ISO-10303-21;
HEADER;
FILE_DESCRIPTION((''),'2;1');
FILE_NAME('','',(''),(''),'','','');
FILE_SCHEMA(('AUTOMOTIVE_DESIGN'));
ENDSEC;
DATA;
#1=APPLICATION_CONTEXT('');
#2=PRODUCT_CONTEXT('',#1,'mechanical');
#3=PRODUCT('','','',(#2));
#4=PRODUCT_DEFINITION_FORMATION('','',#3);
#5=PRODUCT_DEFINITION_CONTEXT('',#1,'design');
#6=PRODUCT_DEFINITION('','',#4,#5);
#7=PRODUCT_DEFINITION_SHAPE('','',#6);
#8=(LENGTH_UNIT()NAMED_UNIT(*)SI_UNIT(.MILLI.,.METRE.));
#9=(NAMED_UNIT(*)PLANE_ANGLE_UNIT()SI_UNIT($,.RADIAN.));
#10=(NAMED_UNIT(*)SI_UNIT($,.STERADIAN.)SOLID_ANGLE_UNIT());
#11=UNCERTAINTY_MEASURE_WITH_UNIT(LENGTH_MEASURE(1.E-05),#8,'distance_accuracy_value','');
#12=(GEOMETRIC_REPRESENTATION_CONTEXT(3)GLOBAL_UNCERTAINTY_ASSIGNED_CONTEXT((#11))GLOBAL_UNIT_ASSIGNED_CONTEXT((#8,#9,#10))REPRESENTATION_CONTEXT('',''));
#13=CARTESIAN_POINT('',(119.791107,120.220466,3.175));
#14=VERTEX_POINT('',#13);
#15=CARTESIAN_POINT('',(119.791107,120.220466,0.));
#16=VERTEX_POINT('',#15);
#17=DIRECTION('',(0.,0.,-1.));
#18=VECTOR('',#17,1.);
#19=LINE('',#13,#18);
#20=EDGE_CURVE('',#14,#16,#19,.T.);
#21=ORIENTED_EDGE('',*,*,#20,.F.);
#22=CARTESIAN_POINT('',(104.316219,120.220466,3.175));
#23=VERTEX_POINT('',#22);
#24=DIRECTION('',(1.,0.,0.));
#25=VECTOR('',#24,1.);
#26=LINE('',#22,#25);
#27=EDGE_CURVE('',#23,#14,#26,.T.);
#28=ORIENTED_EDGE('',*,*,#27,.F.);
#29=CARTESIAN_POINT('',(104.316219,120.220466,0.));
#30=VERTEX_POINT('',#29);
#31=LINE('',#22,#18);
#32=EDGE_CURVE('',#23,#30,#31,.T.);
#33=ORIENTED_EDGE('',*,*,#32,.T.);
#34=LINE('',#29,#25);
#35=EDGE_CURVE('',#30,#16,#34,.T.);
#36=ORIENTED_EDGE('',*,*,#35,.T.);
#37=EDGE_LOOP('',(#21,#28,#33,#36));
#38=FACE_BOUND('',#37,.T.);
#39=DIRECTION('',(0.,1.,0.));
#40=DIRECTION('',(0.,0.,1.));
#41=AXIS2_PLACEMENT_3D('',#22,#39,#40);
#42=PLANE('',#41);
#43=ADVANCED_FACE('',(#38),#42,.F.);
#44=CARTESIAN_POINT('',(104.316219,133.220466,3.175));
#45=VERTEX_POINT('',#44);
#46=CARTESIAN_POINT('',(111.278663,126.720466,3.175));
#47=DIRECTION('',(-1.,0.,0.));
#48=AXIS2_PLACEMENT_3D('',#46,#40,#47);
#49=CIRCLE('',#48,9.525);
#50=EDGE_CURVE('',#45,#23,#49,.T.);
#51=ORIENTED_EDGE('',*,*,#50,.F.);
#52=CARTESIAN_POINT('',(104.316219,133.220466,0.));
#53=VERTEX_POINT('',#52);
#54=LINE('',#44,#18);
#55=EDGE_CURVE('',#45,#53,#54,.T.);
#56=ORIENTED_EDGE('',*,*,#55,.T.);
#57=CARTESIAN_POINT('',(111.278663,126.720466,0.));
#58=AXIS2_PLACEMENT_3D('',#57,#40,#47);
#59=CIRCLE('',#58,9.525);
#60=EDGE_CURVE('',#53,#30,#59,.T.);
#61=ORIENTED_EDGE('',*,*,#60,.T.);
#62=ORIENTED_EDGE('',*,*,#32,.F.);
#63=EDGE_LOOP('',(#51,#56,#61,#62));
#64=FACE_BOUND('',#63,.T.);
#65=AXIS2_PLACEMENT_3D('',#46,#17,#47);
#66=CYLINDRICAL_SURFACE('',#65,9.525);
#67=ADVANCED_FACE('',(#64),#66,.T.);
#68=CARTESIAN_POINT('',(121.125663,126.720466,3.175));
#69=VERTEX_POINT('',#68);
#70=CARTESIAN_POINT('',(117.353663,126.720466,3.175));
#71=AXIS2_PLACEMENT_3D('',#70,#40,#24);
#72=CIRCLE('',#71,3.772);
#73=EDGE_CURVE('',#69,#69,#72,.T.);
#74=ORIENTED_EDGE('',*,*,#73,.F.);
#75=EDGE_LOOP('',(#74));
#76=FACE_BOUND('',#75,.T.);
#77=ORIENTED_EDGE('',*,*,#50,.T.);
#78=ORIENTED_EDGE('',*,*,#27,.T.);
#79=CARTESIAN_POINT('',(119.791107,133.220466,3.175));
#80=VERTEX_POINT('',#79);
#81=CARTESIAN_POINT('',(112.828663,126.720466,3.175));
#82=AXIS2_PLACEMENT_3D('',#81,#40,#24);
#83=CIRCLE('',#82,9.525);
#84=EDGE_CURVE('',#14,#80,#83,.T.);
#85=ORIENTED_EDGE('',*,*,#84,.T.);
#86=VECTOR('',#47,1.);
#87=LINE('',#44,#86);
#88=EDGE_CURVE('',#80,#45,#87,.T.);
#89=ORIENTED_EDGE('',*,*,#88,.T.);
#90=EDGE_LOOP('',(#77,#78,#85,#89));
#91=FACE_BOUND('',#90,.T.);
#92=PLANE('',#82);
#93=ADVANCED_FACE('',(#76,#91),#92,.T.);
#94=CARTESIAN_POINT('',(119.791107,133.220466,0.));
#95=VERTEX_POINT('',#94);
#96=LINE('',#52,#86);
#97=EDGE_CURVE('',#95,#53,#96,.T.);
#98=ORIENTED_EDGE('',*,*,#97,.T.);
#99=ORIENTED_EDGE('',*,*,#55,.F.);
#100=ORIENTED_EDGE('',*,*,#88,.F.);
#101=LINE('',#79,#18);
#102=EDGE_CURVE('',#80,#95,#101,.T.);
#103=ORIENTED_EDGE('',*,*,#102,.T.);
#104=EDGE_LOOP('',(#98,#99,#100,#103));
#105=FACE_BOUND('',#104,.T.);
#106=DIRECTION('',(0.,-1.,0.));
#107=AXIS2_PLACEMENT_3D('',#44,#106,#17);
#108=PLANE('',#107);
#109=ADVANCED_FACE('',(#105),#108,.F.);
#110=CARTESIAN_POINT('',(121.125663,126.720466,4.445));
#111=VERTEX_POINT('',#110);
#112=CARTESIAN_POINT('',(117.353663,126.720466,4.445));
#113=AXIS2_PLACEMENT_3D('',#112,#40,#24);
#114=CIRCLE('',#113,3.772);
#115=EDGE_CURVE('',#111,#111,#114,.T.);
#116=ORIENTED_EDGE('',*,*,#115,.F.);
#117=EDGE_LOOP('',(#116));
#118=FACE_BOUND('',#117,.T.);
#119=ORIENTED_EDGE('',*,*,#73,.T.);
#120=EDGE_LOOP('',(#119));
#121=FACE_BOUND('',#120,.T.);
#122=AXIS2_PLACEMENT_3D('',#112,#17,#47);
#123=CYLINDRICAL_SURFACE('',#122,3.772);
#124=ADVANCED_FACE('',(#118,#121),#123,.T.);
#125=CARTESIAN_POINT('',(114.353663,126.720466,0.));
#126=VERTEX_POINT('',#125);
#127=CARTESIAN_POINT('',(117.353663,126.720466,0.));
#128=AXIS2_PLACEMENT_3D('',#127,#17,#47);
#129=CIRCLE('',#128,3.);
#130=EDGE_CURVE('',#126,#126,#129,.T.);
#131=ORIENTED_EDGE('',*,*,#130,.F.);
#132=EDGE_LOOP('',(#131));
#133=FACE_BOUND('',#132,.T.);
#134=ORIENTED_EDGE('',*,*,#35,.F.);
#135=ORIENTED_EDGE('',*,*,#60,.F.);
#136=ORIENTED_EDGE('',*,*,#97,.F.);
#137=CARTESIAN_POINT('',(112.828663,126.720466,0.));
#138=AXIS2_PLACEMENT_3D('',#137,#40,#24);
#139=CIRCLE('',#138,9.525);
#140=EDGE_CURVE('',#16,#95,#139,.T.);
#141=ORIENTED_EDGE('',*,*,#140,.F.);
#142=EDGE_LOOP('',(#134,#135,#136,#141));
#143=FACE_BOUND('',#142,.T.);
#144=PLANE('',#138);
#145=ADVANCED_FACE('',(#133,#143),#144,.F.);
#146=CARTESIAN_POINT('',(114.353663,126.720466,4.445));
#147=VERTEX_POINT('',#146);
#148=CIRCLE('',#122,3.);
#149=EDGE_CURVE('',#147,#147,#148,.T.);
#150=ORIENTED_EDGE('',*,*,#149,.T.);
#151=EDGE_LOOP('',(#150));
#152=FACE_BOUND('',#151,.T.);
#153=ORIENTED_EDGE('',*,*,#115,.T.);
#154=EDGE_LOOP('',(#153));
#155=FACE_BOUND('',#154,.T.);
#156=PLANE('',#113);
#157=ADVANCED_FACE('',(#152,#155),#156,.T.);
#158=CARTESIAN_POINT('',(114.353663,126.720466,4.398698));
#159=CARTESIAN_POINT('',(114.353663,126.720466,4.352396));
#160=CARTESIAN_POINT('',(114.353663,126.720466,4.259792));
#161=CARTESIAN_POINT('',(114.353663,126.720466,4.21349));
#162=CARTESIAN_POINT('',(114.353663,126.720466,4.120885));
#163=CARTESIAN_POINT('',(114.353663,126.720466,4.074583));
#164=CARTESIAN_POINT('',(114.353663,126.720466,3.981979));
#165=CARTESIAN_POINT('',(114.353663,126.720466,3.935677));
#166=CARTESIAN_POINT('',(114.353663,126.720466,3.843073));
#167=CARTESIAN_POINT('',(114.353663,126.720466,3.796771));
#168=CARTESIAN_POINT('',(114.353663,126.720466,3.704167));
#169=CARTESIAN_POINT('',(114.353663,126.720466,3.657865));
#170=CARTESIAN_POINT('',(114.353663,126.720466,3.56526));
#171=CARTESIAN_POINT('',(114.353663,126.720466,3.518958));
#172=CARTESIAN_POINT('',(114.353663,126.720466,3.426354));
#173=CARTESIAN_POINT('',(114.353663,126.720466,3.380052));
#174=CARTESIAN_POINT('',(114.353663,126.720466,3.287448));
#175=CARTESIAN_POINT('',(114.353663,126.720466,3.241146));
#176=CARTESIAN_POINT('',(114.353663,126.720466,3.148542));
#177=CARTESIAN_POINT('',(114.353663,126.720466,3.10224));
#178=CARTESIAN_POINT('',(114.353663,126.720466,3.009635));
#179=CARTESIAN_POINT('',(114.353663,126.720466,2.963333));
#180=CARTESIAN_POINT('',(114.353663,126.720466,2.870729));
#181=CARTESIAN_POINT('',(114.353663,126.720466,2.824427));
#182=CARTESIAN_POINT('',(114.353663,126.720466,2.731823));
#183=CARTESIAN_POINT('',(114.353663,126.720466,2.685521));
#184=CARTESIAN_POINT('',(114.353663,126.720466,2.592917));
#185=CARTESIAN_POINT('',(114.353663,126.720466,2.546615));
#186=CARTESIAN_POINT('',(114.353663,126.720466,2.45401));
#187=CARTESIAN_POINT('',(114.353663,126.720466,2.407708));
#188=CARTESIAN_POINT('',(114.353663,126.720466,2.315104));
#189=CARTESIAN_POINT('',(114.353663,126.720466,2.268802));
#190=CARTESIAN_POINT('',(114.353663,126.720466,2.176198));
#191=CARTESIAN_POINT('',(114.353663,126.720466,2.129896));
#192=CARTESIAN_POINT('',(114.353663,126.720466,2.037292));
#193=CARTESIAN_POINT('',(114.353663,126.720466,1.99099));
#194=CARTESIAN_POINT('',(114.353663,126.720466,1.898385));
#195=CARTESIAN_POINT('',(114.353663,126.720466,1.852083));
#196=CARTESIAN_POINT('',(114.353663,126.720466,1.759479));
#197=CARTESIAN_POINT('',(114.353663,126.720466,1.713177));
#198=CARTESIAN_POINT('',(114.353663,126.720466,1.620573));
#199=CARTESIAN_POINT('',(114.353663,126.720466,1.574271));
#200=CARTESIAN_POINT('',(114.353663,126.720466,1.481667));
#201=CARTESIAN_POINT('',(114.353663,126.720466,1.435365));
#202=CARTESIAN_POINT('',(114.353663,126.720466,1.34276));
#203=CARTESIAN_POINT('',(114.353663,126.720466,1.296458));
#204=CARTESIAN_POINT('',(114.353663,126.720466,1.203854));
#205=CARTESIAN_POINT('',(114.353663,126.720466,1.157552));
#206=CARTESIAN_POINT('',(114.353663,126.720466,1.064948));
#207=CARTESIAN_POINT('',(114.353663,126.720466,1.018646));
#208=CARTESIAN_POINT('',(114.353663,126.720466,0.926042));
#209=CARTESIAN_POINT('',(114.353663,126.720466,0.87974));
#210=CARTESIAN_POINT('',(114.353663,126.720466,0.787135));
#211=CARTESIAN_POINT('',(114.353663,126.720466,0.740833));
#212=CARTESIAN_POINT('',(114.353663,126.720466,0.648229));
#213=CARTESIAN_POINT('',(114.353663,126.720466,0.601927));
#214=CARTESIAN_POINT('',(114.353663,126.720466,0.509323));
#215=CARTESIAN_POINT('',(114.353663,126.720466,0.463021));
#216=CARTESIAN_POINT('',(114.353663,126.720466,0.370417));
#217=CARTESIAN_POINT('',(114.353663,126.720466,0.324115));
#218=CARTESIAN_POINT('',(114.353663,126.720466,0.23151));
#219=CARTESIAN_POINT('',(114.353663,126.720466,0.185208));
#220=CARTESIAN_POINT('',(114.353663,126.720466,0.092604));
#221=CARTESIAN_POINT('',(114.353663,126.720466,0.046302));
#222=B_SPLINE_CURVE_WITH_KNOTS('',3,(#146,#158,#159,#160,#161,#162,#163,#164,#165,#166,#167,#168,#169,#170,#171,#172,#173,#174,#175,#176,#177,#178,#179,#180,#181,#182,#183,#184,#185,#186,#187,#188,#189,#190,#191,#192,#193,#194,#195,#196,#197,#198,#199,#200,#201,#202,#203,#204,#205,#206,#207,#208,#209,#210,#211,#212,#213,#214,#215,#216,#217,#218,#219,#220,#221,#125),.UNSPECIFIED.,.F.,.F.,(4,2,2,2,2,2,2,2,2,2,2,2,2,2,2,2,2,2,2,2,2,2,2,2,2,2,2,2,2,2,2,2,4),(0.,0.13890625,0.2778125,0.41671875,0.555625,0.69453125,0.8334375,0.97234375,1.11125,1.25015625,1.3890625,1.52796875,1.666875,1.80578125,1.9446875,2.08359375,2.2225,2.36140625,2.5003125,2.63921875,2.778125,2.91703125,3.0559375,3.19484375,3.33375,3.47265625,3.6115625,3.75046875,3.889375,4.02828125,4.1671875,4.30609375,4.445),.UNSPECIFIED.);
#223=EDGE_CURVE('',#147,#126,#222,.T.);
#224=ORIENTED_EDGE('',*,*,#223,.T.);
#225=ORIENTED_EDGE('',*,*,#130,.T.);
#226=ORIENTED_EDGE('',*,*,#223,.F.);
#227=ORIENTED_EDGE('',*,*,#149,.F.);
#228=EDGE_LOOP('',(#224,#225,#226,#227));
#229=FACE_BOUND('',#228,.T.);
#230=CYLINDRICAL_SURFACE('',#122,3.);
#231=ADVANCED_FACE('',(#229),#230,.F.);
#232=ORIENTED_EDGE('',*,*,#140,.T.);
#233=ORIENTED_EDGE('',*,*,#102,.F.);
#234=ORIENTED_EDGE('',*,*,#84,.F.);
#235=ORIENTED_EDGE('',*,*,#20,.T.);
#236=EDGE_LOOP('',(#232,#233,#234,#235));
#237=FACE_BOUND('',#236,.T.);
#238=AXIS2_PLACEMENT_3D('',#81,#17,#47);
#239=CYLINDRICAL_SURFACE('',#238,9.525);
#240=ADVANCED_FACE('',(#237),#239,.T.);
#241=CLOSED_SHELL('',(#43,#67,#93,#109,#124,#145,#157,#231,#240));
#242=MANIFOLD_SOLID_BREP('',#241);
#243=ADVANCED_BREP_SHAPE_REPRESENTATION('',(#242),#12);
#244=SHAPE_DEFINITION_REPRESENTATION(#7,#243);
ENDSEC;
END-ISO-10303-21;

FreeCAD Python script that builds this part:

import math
import FreeCAD as App
import Part
import Sketcher
from FreeCAD import Vector
Q = App.Units.Quantity

doc = App.newDocument("Part")
body = doc.addObject("PartDesign::Body", "Body")

# Sketch on XY plane
sketch1 = body.newObject("Sketcher::SketchObject", "Sketch")
sketch1.AttachmentSupport = (doc.getObject("XY_Plane"), [""])
sketch1.MapMode = "FlatFace"
sketch1.addGeometry([
    Part.LineSegment(Vector(120, 133, 0), Vector(104, 133, 0)),
    Part.ArcOfCircle(Part.Circle(Vector(111, 127, 0), Vector(0, 0, 1), 10), math.radians(137), math.radians(223)),
    Part.LineSegment(Vector(104, 120, 0), Vector(120, 120, 0)),
    Part.ArcOfCircle(Part.Circle(Vector(113, 127, 0), Vector(0, 0, 1), 10), math.radians(-43), math.radians(43)),
], False)
sketch1.addConstraint([
    Sketcher.Constraint("Coincident", 0, 2, 1, 1),
    Sketcher.Constraint("Coincident", 1, 2, 2, 1),
    Sketcher.Constraint("Coincident", 2, 2, 3, 1),
    Sketcher.Constraint("Coincident", 3, 2, 0, 1),
    Sketcher.Constraint("Horizontal", 0),
    Sketcher.Constraint("Horizontal", 2),
    Sketcher.Constraint("Equal", 1, 3),
    Sketcher.Constraint("Horizontal", 1, 3, 3, 3),
    Sketcher.Constraint("Vertical", 0, 2, 1, 2),
    Sketcher.Constraint("Radius", 1, Q("0.375 in")),
    Sketcher.Constraint("DistanceX", 1, 3, 3, 3, 1.55),
    Sketcher.Constraint("DistanceY", 1, 3, 0, 2, 6.5),
    Sketcher.Constraint("DistanceX", -1, 1, 0, 2, 104.316219),
    Sketcher.Constraint("DistanceY", -1, 1, 1, 3, 126.720466),
])
pad1 = body.newObject("PartDesign::Pad", "Pad")
pad1.Profile = sketch1
pad1.Length = Q("0.125 in")

# Sketch on XY plane
sketch2 = body.newObject("Sketcher::SketchObject", "Sketch001")
sketch2.AttachmentSupport = (doc.getObject("XY_Plane"), [""])
sketch2.MapMode = "FlatFace"
sketch2.AttachmentOffset = App.Placement(Vector(0, 0, 0.125 * 25.4), App.Rotation())
sketch2.addGeometry(Part.Circle(Vector(117.4, 126.7, 0), Vector(0, 0, 1), 3.8), False)
sketch2.addConstraint([
    Sketcher.Constraint("Diameter", 0, 7.544),
    Sketcher.Constraint("DistanceX", -1, 1, 0, 3, 117.353663),
    Sketcher.Constraint("DistanceY", -1, 1, 0, 3, 126.720466),
])
pad2 = body.newObject("PartDesign::Pad", "Pad001")
pad2.Profile = sketch2
pad2.Length = Q("0.05 in")

# Sketch on XY plane
sketch3 = body.newObject("Sketcher::SketchObject", "Sketch002")
sketch3.AttachmentSupport = (doc.getObject("XY_Plane"), [""])
sketch3.MapMode = "FlatFace"
sketch3.addGeometry(Part.Circle(Vector(117.4, 126.7, 0), Vector(0, 0, 1), 3), False)
sketch3.addConstraint([
    Sketcher.Constraint("Diameter", 0, 6.0),
    Sketcher.Constraint("DistanceX", -1, 1, 0, 3, 117.353663),
    Sketcher.Constraint("DistanceY", -1, 1, 0, 3, 126.720466),
])
pocket1 = body.newObject("PartDesign::Pocket", "Pocket")
pocket1.Profile = sketch3
pocket1.Type = "ThroughAll"
pocket1.Reversed = True

doc.recompute()
